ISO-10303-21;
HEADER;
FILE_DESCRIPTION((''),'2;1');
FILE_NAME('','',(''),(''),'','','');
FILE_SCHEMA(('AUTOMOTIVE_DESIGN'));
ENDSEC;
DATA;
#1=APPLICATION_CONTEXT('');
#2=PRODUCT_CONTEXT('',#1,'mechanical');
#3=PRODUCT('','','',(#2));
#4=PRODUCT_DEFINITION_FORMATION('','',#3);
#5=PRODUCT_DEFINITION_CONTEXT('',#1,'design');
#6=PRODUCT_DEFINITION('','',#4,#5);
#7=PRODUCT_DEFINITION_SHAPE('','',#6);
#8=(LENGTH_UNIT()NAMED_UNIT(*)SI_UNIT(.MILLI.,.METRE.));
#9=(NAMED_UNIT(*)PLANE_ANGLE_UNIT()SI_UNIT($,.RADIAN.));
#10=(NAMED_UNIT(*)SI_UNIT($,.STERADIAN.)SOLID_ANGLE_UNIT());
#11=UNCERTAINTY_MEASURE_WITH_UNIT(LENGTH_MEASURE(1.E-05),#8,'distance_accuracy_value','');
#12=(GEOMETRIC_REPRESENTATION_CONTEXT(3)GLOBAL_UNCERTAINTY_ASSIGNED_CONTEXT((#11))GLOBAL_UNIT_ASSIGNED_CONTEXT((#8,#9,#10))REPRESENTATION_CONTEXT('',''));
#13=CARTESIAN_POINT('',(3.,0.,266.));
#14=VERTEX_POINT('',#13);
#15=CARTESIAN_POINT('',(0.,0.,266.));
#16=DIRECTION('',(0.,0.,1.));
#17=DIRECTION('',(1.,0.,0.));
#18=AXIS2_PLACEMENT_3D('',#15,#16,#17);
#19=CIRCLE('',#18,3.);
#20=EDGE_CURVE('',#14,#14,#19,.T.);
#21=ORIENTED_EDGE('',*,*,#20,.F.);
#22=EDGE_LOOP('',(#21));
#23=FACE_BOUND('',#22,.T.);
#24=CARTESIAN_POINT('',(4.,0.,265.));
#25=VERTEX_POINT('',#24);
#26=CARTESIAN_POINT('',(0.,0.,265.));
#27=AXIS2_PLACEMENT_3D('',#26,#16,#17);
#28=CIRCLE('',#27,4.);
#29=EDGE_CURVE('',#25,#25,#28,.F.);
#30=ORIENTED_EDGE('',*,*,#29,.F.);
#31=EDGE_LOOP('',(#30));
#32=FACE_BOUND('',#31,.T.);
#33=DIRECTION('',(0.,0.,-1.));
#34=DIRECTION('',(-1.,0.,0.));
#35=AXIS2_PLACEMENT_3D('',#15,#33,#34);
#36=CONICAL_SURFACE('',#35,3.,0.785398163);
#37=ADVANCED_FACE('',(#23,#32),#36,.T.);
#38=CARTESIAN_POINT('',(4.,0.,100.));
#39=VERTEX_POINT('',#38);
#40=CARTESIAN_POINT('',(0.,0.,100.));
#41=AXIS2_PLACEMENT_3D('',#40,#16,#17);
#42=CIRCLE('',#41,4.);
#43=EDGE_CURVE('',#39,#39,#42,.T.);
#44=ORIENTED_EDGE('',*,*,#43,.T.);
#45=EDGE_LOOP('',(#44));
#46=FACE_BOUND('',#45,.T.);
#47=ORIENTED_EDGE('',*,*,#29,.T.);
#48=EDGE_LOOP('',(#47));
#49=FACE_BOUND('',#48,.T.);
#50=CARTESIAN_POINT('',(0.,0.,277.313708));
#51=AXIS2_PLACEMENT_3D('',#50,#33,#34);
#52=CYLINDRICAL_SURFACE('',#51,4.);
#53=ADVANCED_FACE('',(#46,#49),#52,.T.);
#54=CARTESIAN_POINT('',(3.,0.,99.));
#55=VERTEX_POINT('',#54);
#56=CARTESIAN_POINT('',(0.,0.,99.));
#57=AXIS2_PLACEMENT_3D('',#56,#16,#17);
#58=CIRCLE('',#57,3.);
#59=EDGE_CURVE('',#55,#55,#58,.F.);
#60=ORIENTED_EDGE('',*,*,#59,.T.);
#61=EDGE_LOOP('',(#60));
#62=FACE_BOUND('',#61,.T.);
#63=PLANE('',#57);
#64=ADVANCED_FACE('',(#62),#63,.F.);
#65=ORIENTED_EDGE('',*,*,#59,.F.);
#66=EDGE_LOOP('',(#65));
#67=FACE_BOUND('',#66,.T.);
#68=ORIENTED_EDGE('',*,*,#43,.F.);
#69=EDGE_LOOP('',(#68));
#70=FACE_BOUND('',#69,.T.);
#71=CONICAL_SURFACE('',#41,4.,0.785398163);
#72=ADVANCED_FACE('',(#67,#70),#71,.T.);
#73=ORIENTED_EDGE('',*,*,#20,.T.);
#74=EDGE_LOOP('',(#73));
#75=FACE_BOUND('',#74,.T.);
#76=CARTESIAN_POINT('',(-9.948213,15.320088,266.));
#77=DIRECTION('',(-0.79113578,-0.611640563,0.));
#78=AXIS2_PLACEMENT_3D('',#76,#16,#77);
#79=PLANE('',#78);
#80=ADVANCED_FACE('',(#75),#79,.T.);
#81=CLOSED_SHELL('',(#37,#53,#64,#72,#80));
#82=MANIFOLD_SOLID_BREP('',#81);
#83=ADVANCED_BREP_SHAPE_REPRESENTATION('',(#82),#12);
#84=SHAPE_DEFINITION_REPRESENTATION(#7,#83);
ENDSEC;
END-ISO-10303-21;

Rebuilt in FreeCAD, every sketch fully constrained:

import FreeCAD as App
import Part
import Sketcher
from FreeCAD import Vector


def edges_at(feature, points):
    """Names of the edges that pass closest to the given points."""
    edges = feature.Shape.Edges
    near = lambda p: min(range(len(edges)), key=lambda i: edges[i].distToShape(Part.Vertex(*p))[0])
    return sorted({f"Edge{near(p) + 1}" for p in points})

doc = App.newDocument("Part")
body = doc.addObject("PartDesign::Body", "Body")

# Sketch on XY plane
sketch1 = body.newObject("Sketcher::SketchObject", "Sketch")
sketch1.AttachmentSupport = (doc.getObject("XY_Plane"), [""])
sketch1.MapMode = "FlatFace"
sketch1.AttachmentOffset = App.Placement(Vector(0, 0, 99), App.Rotation())
sketch1.addGeometry(Part.Circle(Vector(0, 0, 0), Vector(0, 0, 1), 4), False)
sketch1.addConstraint(Sketcher.Constraint("Coincident", 0, 3, -1, 1))
sketch1.addConstraint(Sketcher.Constraint("Diameter", 0, 8.0))
pad1 = body.newObject("PartDesign::Pad", "Pad")
pad1.Profile = sketch1
pad1.Length = 167
doc.recompute()

chamfer = body.newObject("PartDesign::Chamfer", "Chamfer")
chamfer.Base = (pad1, edges_at(pad1, [(-4, 0, 99), (-4, 0, 266)]))
chamfer.Size = 1

doc.recompute()
